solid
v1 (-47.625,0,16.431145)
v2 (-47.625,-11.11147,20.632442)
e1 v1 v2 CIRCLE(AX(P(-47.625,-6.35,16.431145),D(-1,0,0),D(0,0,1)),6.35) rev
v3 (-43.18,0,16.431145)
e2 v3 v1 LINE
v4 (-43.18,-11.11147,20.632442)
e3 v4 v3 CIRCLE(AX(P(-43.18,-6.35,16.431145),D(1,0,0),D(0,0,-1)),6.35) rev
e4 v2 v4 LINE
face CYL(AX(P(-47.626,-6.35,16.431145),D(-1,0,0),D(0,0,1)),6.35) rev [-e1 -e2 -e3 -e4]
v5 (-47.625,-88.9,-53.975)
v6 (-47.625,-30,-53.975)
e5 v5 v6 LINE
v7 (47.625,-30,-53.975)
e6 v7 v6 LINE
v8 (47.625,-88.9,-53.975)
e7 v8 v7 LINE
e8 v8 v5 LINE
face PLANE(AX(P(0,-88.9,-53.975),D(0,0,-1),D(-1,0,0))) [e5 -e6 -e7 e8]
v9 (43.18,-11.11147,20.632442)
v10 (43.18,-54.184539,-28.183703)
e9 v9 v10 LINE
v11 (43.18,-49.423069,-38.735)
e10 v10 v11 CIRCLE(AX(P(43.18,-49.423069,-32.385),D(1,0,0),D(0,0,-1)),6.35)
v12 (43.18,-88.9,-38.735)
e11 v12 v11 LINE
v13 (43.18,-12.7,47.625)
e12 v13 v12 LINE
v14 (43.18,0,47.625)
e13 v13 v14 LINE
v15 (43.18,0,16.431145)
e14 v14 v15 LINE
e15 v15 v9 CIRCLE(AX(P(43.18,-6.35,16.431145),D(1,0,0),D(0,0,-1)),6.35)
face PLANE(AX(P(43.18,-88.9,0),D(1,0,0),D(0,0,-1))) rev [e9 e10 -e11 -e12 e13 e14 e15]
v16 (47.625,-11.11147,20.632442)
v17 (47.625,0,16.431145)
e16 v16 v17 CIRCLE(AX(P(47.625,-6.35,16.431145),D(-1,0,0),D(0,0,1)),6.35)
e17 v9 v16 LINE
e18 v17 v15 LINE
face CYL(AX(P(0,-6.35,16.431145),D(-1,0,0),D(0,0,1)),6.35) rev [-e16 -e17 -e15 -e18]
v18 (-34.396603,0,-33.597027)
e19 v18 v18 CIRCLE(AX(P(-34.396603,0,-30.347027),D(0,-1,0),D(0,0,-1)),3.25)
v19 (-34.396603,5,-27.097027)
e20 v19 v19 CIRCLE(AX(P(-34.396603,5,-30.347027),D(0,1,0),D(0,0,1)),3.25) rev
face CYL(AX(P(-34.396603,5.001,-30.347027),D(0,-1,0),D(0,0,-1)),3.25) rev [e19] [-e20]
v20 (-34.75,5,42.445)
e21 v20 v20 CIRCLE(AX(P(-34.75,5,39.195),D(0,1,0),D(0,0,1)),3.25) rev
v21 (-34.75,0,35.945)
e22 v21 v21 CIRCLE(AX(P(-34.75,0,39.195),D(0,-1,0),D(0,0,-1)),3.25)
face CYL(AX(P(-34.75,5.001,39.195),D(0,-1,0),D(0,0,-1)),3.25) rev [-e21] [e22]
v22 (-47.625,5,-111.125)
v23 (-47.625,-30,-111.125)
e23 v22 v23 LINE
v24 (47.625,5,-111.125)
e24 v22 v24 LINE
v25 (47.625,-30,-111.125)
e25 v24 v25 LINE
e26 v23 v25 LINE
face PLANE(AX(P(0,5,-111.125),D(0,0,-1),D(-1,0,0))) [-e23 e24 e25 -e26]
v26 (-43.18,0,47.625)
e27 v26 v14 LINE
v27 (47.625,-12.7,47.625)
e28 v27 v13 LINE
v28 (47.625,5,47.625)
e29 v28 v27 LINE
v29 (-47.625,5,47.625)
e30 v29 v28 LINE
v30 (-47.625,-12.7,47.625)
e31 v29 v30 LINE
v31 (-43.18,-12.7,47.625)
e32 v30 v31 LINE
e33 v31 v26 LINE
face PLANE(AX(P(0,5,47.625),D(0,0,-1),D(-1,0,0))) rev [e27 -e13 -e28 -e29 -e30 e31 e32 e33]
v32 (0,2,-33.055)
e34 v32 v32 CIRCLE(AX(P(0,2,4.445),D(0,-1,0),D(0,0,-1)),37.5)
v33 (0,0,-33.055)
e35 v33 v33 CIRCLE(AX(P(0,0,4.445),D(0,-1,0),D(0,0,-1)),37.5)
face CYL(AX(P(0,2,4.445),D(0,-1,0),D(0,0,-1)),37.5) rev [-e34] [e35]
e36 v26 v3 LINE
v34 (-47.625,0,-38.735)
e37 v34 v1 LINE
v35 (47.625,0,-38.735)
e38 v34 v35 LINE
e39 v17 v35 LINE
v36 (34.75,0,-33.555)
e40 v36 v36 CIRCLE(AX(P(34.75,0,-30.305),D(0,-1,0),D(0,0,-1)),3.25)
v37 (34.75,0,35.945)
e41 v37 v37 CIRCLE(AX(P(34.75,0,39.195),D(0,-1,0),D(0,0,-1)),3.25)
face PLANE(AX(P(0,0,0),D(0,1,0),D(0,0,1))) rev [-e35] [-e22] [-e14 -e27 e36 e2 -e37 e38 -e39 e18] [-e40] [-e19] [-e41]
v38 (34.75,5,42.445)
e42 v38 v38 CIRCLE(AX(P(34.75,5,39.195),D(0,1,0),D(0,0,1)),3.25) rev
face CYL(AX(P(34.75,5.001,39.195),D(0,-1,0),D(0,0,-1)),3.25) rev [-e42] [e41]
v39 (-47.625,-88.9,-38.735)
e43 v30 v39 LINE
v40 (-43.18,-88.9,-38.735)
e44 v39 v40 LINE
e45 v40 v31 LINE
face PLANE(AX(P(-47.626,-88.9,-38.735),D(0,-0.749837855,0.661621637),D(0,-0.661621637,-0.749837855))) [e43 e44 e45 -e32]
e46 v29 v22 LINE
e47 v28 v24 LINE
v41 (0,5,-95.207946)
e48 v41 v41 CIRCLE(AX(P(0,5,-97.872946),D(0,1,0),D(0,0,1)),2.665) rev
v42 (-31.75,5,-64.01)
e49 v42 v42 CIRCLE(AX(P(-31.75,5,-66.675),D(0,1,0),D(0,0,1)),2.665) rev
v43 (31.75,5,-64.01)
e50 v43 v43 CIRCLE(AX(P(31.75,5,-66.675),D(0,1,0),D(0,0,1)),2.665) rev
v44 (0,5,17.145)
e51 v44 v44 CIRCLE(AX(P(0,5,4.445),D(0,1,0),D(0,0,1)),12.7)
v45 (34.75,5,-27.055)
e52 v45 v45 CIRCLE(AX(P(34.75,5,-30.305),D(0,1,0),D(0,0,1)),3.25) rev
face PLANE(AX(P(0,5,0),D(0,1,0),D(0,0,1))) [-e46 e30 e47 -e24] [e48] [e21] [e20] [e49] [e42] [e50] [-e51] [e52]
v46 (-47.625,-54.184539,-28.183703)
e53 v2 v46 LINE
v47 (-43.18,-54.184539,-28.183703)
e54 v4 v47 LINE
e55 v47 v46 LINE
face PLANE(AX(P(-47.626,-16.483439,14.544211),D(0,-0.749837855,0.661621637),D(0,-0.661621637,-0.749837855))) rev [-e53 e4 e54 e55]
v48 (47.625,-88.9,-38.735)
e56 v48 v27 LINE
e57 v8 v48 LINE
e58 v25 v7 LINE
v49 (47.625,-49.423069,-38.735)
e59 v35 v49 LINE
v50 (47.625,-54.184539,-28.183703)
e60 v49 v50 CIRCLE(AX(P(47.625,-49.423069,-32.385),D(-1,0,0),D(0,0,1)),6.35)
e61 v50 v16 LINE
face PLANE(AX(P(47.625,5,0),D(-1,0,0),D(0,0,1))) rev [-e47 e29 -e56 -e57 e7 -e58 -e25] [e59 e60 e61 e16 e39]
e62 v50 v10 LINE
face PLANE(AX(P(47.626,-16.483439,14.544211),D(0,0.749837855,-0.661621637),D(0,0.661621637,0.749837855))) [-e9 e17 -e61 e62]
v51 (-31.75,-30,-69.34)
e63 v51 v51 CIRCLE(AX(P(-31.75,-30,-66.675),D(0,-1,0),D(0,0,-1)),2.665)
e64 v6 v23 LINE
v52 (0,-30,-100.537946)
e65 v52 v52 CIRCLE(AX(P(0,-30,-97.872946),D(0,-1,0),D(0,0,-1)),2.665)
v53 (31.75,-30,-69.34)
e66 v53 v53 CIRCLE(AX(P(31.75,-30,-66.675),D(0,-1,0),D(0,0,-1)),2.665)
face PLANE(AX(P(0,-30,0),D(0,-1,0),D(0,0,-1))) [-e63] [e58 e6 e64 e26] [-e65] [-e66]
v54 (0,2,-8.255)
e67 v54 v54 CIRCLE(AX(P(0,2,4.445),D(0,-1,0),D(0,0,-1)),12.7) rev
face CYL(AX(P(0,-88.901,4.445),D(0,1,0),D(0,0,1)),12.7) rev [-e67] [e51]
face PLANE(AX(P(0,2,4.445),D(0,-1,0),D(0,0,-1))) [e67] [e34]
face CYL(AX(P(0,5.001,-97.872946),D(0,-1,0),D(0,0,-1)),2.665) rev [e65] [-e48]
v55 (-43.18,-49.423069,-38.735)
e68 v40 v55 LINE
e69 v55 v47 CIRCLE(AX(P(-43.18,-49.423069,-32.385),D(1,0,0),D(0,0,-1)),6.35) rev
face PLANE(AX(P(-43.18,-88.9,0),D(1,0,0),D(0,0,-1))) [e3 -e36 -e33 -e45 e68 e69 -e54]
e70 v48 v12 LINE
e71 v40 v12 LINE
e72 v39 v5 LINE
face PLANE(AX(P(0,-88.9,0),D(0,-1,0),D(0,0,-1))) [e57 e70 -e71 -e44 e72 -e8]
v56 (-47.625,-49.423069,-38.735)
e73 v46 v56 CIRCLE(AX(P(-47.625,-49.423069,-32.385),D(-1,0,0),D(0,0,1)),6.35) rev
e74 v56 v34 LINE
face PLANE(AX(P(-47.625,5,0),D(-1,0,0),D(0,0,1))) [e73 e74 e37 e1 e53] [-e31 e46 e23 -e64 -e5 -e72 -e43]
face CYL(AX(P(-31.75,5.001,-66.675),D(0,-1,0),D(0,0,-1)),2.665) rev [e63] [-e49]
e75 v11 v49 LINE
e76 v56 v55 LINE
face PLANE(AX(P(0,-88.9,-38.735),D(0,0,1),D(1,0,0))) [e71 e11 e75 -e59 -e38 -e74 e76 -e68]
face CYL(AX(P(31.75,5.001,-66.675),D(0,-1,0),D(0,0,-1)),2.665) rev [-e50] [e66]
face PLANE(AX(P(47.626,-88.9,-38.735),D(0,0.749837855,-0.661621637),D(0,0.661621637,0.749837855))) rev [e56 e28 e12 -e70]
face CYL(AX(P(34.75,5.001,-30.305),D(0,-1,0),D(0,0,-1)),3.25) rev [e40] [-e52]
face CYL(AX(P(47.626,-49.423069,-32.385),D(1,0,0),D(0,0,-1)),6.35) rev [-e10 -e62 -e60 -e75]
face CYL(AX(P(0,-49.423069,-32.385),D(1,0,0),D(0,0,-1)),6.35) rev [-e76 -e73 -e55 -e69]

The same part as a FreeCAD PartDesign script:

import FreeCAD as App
import Part
import Sketcher
Q = App.Units.Quantity


def edges_at(feature, points):
    """Names of the edges that pass closest to the given points."""
    edges = feature.Shape.Edges
    near = lambda p: min(range(len(edges)), key=lambda i: edges[i].distToShape(Part.Vertex(*p))[0])
    return sorted({f"Edge{near(p) + 1}" for p in points})


def add_polygon(sketch, points):
    """Adds a closed chain of lines whose ends are joined by coincident constraints."""
    first, n = sketch.GeometryCount, len(points)
    for a, b in zip(points, points[1:] + points[:1]):
        sketch.addGeometry(Part.LineSegment(App.Vector(*a, 0), App.Vector(*b, 0)), False)
    for i in range(n):
        sketch.addConstraint(Sketcher.Constraint("Coincident", first + i, 2, first + (i + 1) % n, 1))

doc = App.newDocument("Part")
params = doc.addObject("Spreadsheet::Sheet", "Params")
for row, (alias, value) in enumerate([
    ("sketch1_width", "3.75 in"),
    ("sketch1_height", "6.25 in"),
    ("pad1_length", "5 mm"),
    ("sketch2_height", "4 in"),
    ("sketch2_width", "3.4 in"),
    ("sketch2_width2", "3.75 in"),
    ("pad2_length", "3.5 in"),
    ("sketch3_width", "3 in"),
    ("sketch3_height", "3.4 in"),
    ("sketch4_width", "3 in"),
    ("sketch4_height", "3.4 in"),
    ("pocket2_length", "3.575 in"),
    ("pocket3_length", "2 mm"),
    ("pocket5_length", "3.575 in"),
    ("fillet_radius", "0.25 in"),
    ("sketch8_width", "3.75 in"),
    ("sketch8_height", "2.25 in"),
    ("pad3_length", "30 mm"),
    ("sketch12_diameter", "1 in"),
], start=1):
    params.set(f"A{row}", alias)
    params.set(f"B{row}", "=" + value)
    params.setAlias(f"B{row}", alias)

body = doc.addObject("PartDesign::Body", "Body")

# Sketch on XZ plane
sketch1 = body.newObject("Sketcher::SketchObject", "Sketch")
sketch1.AttachmentSupport = (doc.getObject("XZ_Plane"), [""])
sketch1.MapMode = "FlatFace"
add_polygon(sketch1, [(-48, -111), (-48, 48), (48, 48), (48, -111)])  # lines 0-3
sketch1.addConstraint(Sketcher.Constraint("Vertical", 0))
sketch1.addConstraint(Sketcher.Constraint("Horizontal", 1))
sketch1.addConstraint(Sketcher.Constraint("Vertical", 2))
sketch1.addConstraint(Sketcher.Constraint("Horizontal", 3))
sketch1.addConstraint(Sketcher.Constraint("DistanceX", 1, 1, 1, 2, Q("3.75 in")))
sketch1.addConstraint(Sketcher.Constraint("DistanceY", 0, 1, 0, 2, Q("6.25 in")))
sketch1.addConstraint(Sketcher.Constraint("DistanceX", 0, 2, -1, 1, Q("1.875 in")))
sketch1.addConstraint(Sketcher.Constraint("DistanceY", -1, 1, 0, 2, Q("1.875 in")))
sketch1.setExpression("Constraints[8]", "Params.sketch1_width")
sketch1.setExpression("Constraints[9]", "Params.sketch1_height")
pad1 = body.newObject("PartDesign::Pad", "Pad")
pad1.Profile = sketch1
pad1.setExpression("Length", "Params.pad1_length")
pad1.Reversed = True

# Sketch on XZ plane
sketch2 = body.newObject("Sketcher::SketchObject", "Sketch001")
sketch2.AttachmentSupport = (doc.getObject("XZ_Plane"), [""])
sketch2.MapMode = "FlatFace"
add_polygon(sketch2, [(-43.2, -38.7), (-43.2, 47.6), (-47.6, 47.6), (-47.6, -54), (47.6, -54), (47.6, 47.6), (43.2, 47.6), (43.2, -38.7)])  # lines 0-7
sketch2.addConstraint(Sketcher.Constraint("Vertical", 0))
sketch2.addConstraint(Sketcher.Constraint("Horizontal", 1))
sketch2.addConstraint(Sketcher.Constraint("Vertical", 2))
sketch2.addConstraint(Sketcher.Constraint("Horizontal", 3))
sketch2.addConstraint(Sketcher.Constraint("Vertical", 4))
sketch2.addConstraint(Sketcher.Constraint("Horizontal", 5))
sketch2.addConstraint(Sketcher.Constraint("Vertical", 6))
sketch2.addConstraint(Sketcher.Constraint("Horizontal", 7))
sketch2.addConstraint(Sketcher.Constraint("Symmetric", 1, 2, 4, 2, -2))
sketch2.addConstraint(Sketcher.Constraint("Equal", 1, 5))
sketch2.addConstraint(Sketcher.Constraint("Equal", 7, 0))
sketch2.addConstraint(Sketcher.Constraint("DistanceY", 2, 2, 2, 1, Q("4 in")))
sketch2.addConstraint(Sketcher.Constraint("DistanceX", 7, 2, 7, 1, Q("3.4 in")))
sketch2.addConstraint(Sketcher.Constraint("DistanceX", 3, 1, 3, 2, Q("3.75 in")))
sketch2.addConstraint(Sketcher.Constraint("DistanceY", -1, 1, 0, 2, Q("1.875 in")))
sketch2.setExpression("Constraints[19]", "Params.sketch2_height")
sketch2.setExpression("Constraints[20]", "Params.sketch2_width")
sketch2.setExpression("Constraints[21]", "Params.sketch2_width2")
pad2 = body.newObject("PartDesign::Pad", "Pad001")
pad2.Profile = sketch2
pad2.setExpression("Length", "Params.pad2_length")

# Sketch on YZ plane
sketch3 = body.newObject("Sketcher::SketchObject", "Sketch002")
sketch3.AttachmentSupport = (doc.getObject("YZ_Plane"), [""])
sketch3.MapMode = "FlatFace"
sketch3.AttachmentOffset = App.Placement(App.Vector(0, 0, 1.7 * 25.4), App.Rotation())
add_polygon(sketch3, [(-13, 48), (-89, -39), (-89, 48)])  # lines 0-2
sketch3.addConstraint(Sketcher.Constraint("Vertical", 1))
sketch3.addConstraint(Sketcher.Constraint("Horizontal", 2))
sketch3.addConstraint(Sketcher.Constraint("DistanceX", 2, 1, 2, 2, Q("3 in")))
sketch3.addConstraint(Sketcher.Constraint("DistanceY", 1, 1, 1, 2, Q("3.4 in")))
sketch3.addConstraint(Sketcher.Constraint("DistanceX", 0, 2, -1, 1, Q("3.5 in")))
sketch3.addConstraint(Sketcher.Constraint("DistanceY", 0, 2, -1, 1, Q("1.525 in")))
sketch3.setExpression("Constraints[5]", "Params.sketch3_width")
sketch3.setExpression("Constraints[6]", "Params.sketch3_height")
pocket1 = body.newObject("PartDesign::Pocket", "Pocket")
pocket1.Profile = sketch3
pocket1.Type = "UpToFirst"
pocket1.Reversed = True

# Sketch on YZ plane
sketch4 = body.newObject("Sketcher::SketchObject", "Sketch003")
sketch4.AttachmentSupport = (doc.getObject("YZ_Plane"), [""])
sketch4.MapMode = "FlatFace"
sketch4.AttachmentOffset = App.Placement(App.Vector(0, 0, 1.7 * 25.4), App.Rotation())
add_polygon(sketch4, [(-13, 48), (-89, -39), (-89, 48)])  # lines 0-2
sketch4.addConstraint(Sketcher.Constraint("Vertical", 1))
sketch4.addConstraint(Sketcher.Constraint("Horizontal", 2))
sketch4.addConstraint(Sketcher.Constraint("DistanceX", 2, 1, 2, 2, Q("3 in")))
sketch4.addConstraint(Sketcher.Constraint("DistanceY", 1, 1, 1, 2, Q("3.4 in")))
sketch4.addConstraint(Sketcher.Constraint("DistanceX", 0, 2, -1, 1, Q("3.5 in")))
sketch4.addConstraint(Sketcher.Constraint("DistanceY", 0, 2, -1, 1, Q("1.525 in")))
sketch4.setExpression("Constraints[5]", "Params.sketch4_width")
sketch4.setExpression("Constraints[6]", "Params.sketch4_height")
pocket2 = body.newObject("PartDesign::Pocket", "Pocket001")
pocket2.Profile = sketch4
pocket2.setExpression("Length", "Params.pocket2_length")

# Sketch on XZ plane
sketch5 = body.newObject("Sketcher::SketchObject", "Sketch004")
sketch5.AttachmentSupport = (doc.getObject("XZ_Plane"), [""])
sketch5.MapMode = "FlatFace"
sketch5.addGeometry(Part.Circle(App.Vector(0, 4, 0), App.Vector(0, 0, 1), 38), False)
sketch5.addConstraint(Sketcher.Constraint("PointOnObject", 0, 3, -2))
sketch5.addConstraint(Sketcher.Constraint("Diameter", 0, 75.0))
sketch5.addConstraint(Sketcher.Constraint("DistanceY", -1, 1, 0, 3, Q("0.175 in")))
pocket3 = body.newObject("PartDesign::Pocket", "Pocket002")
pocket3.Profile = sketch5
pocket3.setExpression("Length", "Params.pocket3_length")

# Sketch on YZ plane
sketch6 = body.newObject("Sketcher::SketchObject", "Sketch005")
sketch6.AttachmentSupport = (doc.getObject("YZ_Plane"), [""])
sketch6.MapMode = "FlatFace"
sketch6.AttachmentOffset = App.Placement(App.Vector(0, 0, -1.7 * 25.4), App.Rotation())
add_polygon(sketch6, [(0, -39), (0, 33), (-63, -39)])  # lines 0-2
sketch6.addConstraint(Sketcher.Constraint("Vertical", 0))
sketch6.addConstraint(Sketcher.Constraint("Horizontal", 2))
sketch6.addConstraint(Sketcher.Constraint("PointOnObject", 0, 2, -2))
sketch6.addConstraint(Sketcher.Constraint("DistanceY", 1, 2, -1, 1, Q("1.525 in")))
sketch6.addConstraint(Sketcher.Constraint("DistanceY", 0, 1, 0, 2, 71.960442))
sketch6.addConstraint(Sketcher.Constraint("DistanceX", 2, 1, 2, 2, 63.494508))
pocket4 = body.newObject("PartDesign::Pocket", "Pocket003")
pocket4.Profile = sketch6
pocket4.Type = "UpToFirst"

# Sketch on YZ plane
sketch7 = body.newObject("Sketcher::SketchObject", "Sketch006")
sketch7.AttachmentSupport = (doc.getObject("YZ_Plane"), [""])
sketch7.MapMode = "FlatFace"
sketch7.AttachmentOffset = App.Placement(App.Vector(0, 0, -1.7 * 25.4), App.Rotation())
add_polygon(sketch7, [(0, -39), (0, 33), (-63, -39)])  # lines 0-2
sketch7.addConstraint(Sketcher.Constraint("Vertical", 0))
sketch7.addConstraint(Sketcher.Constraint("Horizontal", 2))
sketch7.addConstraint(Sketcher.Constraint("PointOnObject", 0, 2, -2))
sketch7.addConstraint(Sketcher.Constraint("DistanceY", 1, 2, -1, 1, Q("1.525 in")))
sketch7.addConstraint(Sketcher.Constraint("DistanceY", 0, 1, 0, 2, 71.960442))
sketch7.addConstraint(Sketcher.Constraint("DistanceX", 2, 1, 2, 2, 63.494508))
pocket5 = body.newObject("PartDesign::Pocket", "Pocket004")
pocket5.Profile = sketch7
pocket5.setExpression("Length", "Params.pocket5_length")
pocket5.Reversed = True
doc.recompute()

fillet = body.newObject("PartDesign::Fillet", "Fillet")
fillet.Base = (pocket5, edges_at(pocket5, [
    (45.403, -63.495, -38.735),
    (45.403, 0, 33.225),
    (-45.403, 0, 33.225),
    (-45.403, -63.495, -38.735),
]))
fillet.setExpression("Radius", "Params.fillet_radius")

# Sketch on XZ plane
sketch8 = body.newObject("Sketcher::SketchObject", "Sketch007")
sketch8.AttachmentSupport = (doc.getObject("XZ_Plane"), [""])
sketch8.MapMode = "FlatFace"
add_polygon(sketch8, [(-48, -54), (-48, -111), (48, -111), (48, -54)])  # lines 0-3
sketch8.addConstraint(Sketcher.Constraint("Vertical", 0))
sketch8.addConstraint(Sketcher.Constraint("Horizontal", 1))
sketch8.addConstraint(Sketcher.Constraint("Vertical", 2))
sketch8.addConstraint(Sketcher.Constraint("Horizontal", 3))
sketch8.addConstraint(Sketcher.Constraint("DistanceX", 1, 1, 1, 2, Q("3.75 in")))
sketch8.addConstraint(Sketcher.Constraint("DistanceY", 0, 2, 0, 1, Q("2.25 in")))
sketch8.addConstraint(Sketcher.Constraint("DistanceX", 0, 2, -1, 1, Q("1.875 in")))
sketch8.addConstraint(Sketcher.Constraint("DistanceY", 0, 2, -1, 1, Q("4.375 in")))
sketch8.setExpression("Constraints[8]", "Params.sketch8_width")
sketch8.setExpression("Constraints[9]", "Params.sketch8_height")
pad3 = body.newObject("PartDesign::Pad", "Pad002")
pad3.Profile = sketch8
pad3.setExpression("Length", "Params.pad3_length")

# Sketch on XZ plane
sketch9 = body.newObject("Sketcher::SketchObject", "Sketch008")
sketch9.AttachmentSupport = (doc.getObject("XZ_Plane"), [""])
sketch9.MapMode = "FlatFace"
sketch9.AttachmentOffset = App.Placement(App.Vector(0, 0, 30), App.Rotation())
sketch9.addGeometry(Part.Circle(App.Vector(0, -97.9, 0), App.Vector(0, 0, 1), 2.7), False)
sketch9.addConstraint(Sketcher.Constraint("PointOnObject", 0, 3, -2))
sketch9.addConstraint(Sketcher.Constraint("Diameter", 0, 5.33))
sketch9.addConstraint(Sketcher.Constraint("DistanceY", 0, 3, -1, 1, 97.872946))
pocket6 = body.newObject("PartDesign::Pocket", "Pocket005")
pocket6.Profile = sketch9
pocket6.Type = "UpToFirst"

# Sketch on XZ plane
sketch10 = body.newObject("Sketcher::SketchObject", "Sketch009")
sketch10.AttachmentSupport = (doc.getObject("XZ_Plane"), [""])
sketch10.MapMode = "FlatFace"
sketch10.AttachmentOffset = App.Placement(App.Vector(0, 0, 30), App.Rotation())
sketch10.addGeometry(Part.Circle(App.Vector(-31.8, -66.7, 0), App.Vector(0, 0, 1), 2.7), False)
sketch10.addConstraint(Sketcher.Constraint("Diameter", 0, 5.33))
sketch10.addConstraint(Sketcher.Constraint("DistanceX", 0, 3, -1, 1, Q("1.25 in")))
sketch10.addConstraint(Sketcher.Constraint("DistanceY", 0, 3, -1, 1, Q("2.625 in")))
pocket7 = body.newObject("PartDesign::Pocket", "Pocket006")
pocket7.Profile = sketch10
pocket7.Type = "UpToFirst"

# Sketch on XZ plane
sketch11 = body.newObject("Sketcher::SketchObject", "Sketch010")
sketch11.AttachmentSupport = (doc.getObject("XZ_Plane"), [""])
sketch11.MapMode = "FlatFace"
sketch11.AttachmentOffset = App.Placement(App.Vector(0, 0, 30), App.Rotation())
sketch11.addGeometry(Part.Circle(App.Vector(31.8, -66.7, 0), App.Vector(0, 0, 1), 2.7), False)
sketch11.addConstraint(Sketcher.Constraint("Diameter", 0, 5.33))
sketch11.addConstraint(Sketcher.Constraint("DistanceX", -1, 1, 0, 3, Q("1.25 in")))
sketch11.addConstraint(Sketcher.Constraint("DistanceY", 0, 3, -1, 1, Q("2.625 in")))
pocket8 = body.newObject("PartDesign::Pocket", "Pocket007")
pocket8.Profile = sketch11
pocket8.Type = "UpToFirst"

# Sketch on XZ plane
sketch12 = body.newObject("Sketcher::SketchObject", "Sketch011")
sketch12.AttachmentSupport = (doc.getObject("XZ_Plane"), [""])
sketch12.MapMode = "FlatFace"
sketch12.AttachmentOffset = App.Placement(App.Vector(0, 0, -5), App.Rotation())
sketch12.addGeometry(Part.Circle(App.Vector(0, 4, 0), App.Vector(0, 0, 1), 13), False)
sketch12.addConstraint(Sketcher.Constraint("PointOnObject", 0, 3, -2))
sketch12.addConstraint(Sketcher.Constraint("Diameter", 0, Q("1 in")))
sketch12.addConstraint(Sketcher.Constraint("DistanceY", -1, 1, 0, 3, Q("0.175 in")))
sketch12.setExpression("Constraints[1]", "Params.sketch12_diameter")
pocket9 = body.newObject("PartDesign::Pocket", "Pocket008")
pocket9.Profile = sketch12
pocket9.Type = "UpToFirst"
pocket9.Reversed = True

# Sketch on XZ plane
sketch13 = body.newObject("Sketcher::SketchObject", "Sketch012")
sketch13.AttachmentSupport = (doc.getObject("XZ_Plane"), [""])
sketch13.MapMode = "FlatFace"
sketch13.addGeometry(Part.Circle(App.Vector(-34.8, 39.2, 0), App.Vector(0, 0, 1), 3.2), False)
sketch13.addConstraint(Sketcher.Constraint("Diameter", 0, 6.5))
sketch13.addConstraint(Sketcher.Constraint("DistanceX", 0, 3, -1, 1, 34.75))
sketch13.addConstraint(Sketcher.Constraint("DistanceY", -1, 1, 0, 3, 39.195))
pocket10 = body.newObject("PartDesign::Pocket", "Pocket009")
pocket10.Profile = sketch13
pocket10.Type = "UpToFirst"

# Sketch on XZ plane
sketch14 = body.newObject("Sketcher::SketchObject", "Sketch013")
sketch14.AttachmentSupport = (doc.getObject("XZ_Plane"), [""])
sketch14.MapMode = "FlatFace"
sketch14.addGeometry(Part.Circle(App.Vector(34.8, 39.2, 0), App.Vector(0, 0, 1), 3.2), False)
sketch14.addConstraint(Sketcher.Constraint("Diameter", 0, 6.5))
sketch14.addConstraint(Sketcher.Constraint("DistanceX", -1, 1, 0, 3, 34.75))
sketch14.addConstraint(Sketcher.Constraint("DistanceY", -1, 1, 0, 3, 39.195))
pocket11 = body.newObject("PartDesign::Pocket", "Pocket010")
pocket11.Profile = sketch14
pocket11.Type = "UpToFirst"

# Sketch on XZ plane
sketch15 = body.newObject("Sketcher::SketchObject", "Sketch014")
sketch15.AttachmentSupport = (doc.getObject("XZ_Plane"), [""])
sketch15.MapMode = "FlatFace"
sketch15.addGeometry(Part.Circle(App.Vector(-34.4, -30.3, 0), App.Vector(0, 0, 1), 3.2), False)
sketch15.addConstraint(Sketcher.Constraint("Diameter", 0, 6.5))
sketch15.addConstraint(Sketcher.Constraint("DistanceX", 0, 3, -1, 1, 34.396603))
sketch15.addConstraint(Sketcher.Constraint("DistanceY", 0, 3, -1, 1, 30.347027))
pocket12 = body.newObject("PartDesign::Pocket", "Pocket011")
pocket12.Profile = sketch15
pocket12.Type = "UpToFirst"

# Sketch on XZ plane
sketch16 = body.newObject("Sketcher::SketchObject", "Sketch015")
sketch16.AttachmentSupport = (doc.getObject("XZ_Plane"), [""])
sketch16.MapMode = "FlatFace"
sketch16.addGeometry(Part.Circle(App.Vector(34.8, -30.3, 0), App.Vector(0, 0, 1), 3.2), False)
sketch16.addConstraint(Sketcher.Constraint("Diameter", 0, 6.5))
sketch16.addConstraint(Sketcher.Constraint("DistanceX", -1, 1, 0, 3, 34.75))
sketch16.addConstraint(Sketcher.Constraint("DistanceY", 0, 3, -1, 1, 30.305))
pocket13 = body.newObject("PartDesign::Pocket", "Pocket012")
pocket13.Profile = sketch16
pocket13.Type = "UpToFirst"

doc.recompute()
